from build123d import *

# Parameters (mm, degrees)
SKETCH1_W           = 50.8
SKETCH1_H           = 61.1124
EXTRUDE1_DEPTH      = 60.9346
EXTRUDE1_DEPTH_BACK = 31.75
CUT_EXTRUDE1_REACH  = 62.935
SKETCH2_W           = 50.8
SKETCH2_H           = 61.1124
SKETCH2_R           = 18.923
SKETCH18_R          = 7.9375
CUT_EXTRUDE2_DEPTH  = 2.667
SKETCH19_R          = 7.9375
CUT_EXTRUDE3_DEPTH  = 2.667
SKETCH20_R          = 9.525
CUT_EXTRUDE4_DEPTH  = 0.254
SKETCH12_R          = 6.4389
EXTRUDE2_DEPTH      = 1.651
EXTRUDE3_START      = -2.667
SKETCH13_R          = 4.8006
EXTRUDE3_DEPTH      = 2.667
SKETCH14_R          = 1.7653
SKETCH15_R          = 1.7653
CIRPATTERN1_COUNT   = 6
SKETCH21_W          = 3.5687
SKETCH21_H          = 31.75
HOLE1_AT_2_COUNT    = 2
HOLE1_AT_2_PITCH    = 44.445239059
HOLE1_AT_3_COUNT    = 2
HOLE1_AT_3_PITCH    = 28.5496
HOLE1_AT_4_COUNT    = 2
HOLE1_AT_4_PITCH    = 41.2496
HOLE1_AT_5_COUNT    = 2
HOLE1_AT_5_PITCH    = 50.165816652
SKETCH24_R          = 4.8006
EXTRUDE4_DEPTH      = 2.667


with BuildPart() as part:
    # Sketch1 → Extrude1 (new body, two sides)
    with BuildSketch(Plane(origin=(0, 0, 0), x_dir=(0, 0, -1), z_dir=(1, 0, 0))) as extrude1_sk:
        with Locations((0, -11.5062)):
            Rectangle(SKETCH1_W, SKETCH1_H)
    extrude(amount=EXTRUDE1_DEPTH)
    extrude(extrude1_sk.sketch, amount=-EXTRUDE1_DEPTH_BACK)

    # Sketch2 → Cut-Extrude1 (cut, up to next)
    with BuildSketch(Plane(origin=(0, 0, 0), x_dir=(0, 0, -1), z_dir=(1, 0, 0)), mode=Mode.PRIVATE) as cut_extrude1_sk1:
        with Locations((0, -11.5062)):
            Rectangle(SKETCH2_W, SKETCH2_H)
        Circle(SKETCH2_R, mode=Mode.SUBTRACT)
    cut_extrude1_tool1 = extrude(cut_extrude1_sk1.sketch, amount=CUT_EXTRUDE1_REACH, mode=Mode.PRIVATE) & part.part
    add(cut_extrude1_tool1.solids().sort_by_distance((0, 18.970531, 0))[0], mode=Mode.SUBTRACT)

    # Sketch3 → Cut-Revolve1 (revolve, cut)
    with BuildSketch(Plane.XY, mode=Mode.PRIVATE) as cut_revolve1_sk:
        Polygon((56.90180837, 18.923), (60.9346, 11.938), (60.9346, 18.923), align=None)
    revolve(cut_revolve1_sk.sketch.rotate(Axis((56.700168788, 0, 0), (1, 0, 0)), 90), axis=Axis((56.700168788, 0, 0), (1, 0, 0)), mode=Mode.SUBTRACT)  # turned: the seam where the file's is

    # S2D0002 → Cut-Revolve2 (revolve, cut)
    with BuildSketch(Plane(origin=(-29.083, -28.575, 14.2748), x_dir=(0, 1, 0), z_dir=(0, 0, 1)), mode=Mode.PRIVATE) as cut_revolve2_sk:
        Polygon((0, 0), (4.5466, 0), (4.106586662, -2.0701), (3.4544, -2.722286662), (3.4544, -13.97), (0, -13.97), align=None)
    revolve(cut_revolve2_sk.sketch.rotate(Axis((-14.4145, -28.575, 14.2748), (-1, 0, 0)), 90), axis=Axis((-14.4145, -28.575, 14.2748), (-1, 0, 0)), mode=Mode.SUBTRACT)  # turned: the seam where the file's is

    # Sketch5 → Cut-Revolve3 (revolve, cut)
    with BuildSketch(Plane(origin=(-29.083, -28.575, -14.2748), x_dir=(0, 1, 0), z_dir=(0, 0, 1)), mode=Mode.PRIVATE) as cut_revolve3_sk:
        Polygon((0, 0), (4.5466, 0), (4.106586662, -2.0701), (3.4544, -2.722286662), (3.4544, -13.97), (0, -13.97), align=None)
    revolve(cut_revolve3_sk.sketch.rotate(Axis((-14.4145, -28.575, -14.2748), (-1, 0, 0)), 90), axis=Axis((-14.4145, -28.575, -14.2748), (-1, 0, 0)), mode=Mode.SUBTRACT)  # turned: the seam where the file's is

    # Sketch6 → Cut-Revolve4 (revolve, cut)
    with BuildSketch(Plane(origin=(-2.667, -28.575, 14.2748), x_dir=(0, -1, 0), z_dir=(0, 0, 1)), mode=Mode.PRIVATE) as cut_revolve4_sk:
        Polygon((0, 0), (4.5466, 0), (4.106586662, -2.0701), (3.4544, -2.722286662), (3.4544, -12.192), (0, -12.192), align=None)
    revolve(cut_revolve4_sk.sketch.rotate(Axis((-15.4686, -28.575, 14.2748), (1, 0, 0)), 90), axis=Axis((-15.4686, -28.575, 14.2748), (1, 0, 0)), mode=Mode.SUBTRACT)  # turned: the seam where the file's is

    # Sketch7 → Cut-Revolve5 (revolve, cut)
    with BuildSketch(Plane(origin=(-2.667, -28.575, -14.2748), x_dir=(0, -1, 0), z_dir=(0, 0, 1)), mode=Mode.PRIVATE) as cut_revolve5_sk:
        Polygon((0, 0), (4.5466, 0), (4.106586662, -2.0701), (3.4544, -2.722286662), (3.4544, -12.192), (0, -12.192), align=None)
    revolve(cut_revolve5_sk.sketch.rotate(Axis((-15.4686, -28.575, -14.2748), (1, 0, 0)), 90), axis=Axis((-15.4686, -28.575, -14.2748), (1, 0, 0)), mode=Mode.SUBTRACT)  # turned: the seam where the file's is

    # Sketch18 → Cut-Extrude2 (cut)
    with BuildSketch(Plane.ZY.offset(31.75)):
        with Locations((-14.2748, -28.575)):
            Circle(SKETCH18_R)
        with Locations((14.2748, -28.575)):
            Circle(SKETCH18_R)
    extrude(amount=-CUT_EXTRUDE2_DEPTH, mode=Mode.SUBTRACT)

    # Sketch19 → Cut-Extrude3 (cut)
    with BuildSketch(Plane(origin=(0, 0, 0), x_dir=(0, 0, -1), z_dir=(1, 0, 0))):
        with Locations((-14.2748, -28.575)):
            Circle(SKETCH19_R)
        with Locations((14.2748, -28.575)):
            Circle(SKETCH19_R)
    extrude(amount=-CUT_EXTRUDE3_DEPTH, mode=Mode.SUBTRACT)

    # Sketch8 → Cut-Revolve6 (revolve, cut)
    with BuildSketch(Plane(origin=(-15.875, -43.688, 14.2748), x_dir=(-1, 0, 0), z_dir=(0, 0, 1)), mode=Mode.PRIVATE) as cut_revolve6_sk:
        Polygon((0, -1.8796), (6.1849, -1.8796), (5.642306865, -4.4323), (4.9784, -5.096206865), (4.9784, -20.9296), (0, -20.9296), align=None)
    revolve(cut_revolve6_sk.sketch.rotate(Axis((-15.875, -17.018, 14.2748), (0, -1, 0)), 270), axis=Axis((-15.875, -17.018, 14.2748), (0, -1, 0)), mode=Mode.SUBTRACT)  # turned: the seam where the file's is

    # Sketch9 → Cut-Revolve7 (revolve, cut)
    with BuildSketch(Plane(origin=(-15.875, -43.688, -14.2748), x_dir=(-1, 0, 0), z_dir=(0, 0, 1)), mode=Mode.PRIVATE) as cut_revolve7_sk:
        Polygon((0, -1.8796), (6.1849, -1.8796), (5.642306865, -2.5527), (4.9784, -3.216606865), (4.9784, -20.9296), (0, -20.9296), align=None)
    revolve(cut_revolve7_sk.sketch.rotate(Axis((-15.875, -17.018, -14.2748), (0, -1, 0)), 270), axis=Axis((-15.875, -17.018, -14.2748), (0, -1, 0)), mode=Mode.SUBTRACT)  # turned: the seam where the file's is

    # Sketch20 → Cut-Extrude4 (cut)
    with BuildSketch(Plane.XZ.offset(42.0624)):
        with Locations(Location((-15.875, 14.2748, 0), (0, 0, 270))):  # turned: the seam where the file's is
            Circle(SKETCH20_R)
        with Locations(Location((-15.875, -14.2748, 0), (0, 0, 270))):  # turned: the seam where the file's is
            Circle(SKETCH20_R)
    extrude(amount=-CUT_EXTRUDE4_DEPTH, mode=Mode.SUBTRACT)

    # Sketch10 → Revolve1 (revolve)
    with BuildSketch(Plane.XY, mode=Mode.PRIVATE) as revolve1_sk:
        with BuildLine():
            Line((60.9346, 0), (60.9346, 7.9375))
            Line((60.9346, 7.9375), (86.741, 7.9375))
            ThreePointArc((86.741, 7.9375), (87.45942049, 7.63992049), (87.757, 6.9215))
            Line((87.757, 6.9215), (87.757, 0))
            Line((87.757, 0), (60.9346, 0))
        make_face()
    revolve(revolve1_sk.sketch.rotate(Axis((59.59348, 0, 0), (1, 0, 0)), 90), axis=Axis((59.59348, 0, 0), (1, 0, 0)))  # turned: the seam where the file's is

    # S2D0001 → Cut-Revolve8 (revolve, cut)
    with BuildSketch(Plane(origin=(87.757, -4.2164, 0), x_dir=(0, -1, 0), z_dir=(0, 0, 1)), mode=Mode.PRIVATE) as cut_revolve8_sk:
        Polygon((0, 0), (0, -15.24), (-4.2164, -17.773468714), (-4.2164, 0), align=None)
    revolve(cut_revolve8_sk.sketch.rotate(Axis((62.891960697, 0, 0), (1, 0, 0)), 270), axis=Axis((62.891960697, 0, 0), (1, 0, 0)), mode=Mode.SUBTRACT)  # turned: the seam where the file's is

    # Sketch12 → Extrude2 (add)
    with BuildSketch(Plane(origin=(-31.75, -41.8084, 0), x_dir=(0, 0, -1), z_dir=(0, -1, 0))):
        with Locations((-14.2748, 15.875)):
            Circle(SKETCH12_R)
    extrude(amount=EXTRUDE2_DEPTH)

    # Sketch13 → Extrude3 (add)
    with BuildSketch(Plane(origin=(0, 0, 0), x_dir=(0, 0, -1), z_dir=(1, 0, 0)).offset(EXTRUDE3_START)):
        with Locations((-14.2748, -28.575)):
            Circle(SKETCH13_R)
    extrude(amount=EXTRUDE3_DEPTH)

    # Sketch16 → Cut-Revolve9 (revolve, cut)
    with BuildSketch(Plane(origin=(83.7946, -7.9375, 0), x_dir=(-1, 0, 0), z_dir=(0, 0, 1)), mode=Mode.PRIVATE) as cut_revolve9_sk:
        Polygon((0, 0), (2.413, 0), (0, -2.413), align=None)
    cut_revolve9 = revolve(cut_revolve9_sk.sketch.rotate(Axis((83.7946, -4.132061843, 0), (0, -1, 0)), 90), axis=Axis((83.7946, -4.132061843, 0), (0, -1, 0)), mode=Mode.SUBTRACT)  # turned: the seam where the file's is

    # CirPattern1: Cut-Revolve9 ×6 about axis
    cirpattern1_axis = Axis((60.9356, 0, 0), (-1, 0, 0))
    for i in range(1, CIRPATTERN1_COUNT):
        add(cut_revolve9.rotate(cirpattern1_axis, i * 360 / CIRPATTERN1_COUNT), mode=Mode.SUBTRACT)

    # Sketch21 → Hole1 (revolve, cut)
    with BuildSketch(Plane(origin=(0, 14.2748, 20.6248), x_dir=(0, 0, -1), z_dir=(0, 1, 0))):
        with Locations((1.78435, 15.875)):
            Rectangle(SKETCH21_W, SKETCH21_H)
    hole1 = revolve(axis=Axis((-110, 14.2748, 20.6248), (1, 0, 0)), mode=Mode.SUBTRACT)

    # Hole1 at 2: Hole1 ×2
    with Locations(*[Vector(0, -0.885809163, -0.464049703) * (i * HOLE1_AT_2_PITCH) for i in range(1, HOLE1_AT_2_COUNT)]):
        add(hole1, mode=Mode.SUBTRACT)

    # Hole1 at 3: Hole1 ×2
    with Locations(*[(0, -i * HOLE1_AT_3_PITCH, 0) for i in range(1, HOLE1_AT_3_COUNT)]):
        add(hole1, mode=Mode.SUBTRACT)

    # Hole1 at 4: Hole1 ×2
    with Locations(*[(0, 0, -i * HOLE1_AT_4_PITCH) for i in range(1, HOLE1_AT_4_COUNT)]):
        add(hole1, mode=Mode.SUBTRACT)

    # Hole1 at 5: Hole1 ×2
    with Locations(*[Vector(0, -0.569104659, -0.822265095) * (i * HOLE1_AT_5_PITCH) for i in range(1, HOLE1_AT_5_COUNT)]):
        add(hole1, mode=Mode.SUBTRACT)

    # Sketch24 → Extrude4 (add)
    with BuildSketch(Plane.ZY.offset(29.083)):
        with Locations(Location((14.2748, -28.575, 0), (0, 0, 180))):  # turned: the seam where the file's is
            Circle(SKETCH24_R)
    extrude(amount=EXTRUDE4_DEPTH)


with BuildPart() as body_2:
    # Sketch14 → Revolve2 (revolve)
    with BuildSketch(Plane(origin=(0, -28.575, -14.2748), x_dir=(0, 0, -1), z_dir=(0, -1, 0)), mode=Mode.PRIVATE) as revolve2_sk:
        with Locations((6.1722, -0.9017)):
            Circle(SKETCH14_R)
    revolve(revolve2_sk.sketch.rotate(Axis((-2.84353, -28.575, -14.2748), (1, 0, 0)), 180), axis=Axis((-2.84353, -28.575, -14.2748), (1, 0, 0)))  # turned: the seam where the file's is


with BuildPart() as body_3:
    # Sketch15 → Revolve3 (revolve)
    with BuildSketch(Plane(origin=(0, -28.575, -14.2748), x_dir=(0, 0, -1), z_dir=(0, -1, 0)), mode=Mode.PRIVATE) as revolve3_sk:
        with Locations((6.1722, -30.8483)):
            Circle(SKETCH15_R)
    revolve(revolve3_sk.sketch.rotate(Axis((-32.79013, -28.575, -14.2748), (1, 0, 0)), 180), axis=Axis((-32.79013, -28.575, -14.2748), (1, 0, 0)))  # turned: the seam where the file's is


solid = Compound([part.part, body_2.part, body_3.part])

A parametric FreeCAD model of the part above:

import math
import FreeCAD as App
import Part
import Sketcher

V = App.Vector
Q = App.Units.Quantity


def add_polygon(sketch, points):
    """Adds a closed chain of lines whose ends are joined by coincident constraints."""
    first, n = sketch.GeometryCount, len(points)
    for a, b in zip(points, points[1:] + points[:1]):
        sketch.addGeometry(Part.LineSegment(App.Vector(*a, 0), App.Vector(*b, 0)), False)
    for i in range(n):
        sketch.addConstraint(Sketcher.Constraint("Coincident", first + i, 2, first + (i + 1) % n, 1))

doc = App.newDocument("Part")
body = doc.addObject("PartDesign::Body", "Body")

# Sketch on YZ plane
sketch1 = doc.addObject("Sketcher::SketchObject", "Sketch")
body.addObject(sketch1)
sketch1.AttachmentSupport = (doc.YZ_Plane, [""])
sketch1.MapMode = "FlatFace"
add_polygon(sketch1, [(19, 25), (-42, 25), (-42, -25), (19, -25)])  # lines 0-3
sketch1.addConstraint([
    Sketcher.Constraint("Horizontal", 0),
    Sketcher.Constraint("Vertical", 1),
    Sketcher.Constraint("Horizontal", 2),
    Sketcher.Constraint("Vertical", 3),
    Sketcher.Constraint("DistanceY", 1, 2, 1, 1, Q("2 in")),
    Sketcher.Constraint("DistanceY", -1, 1, 0, 2, Q("1 in")),
    Sketcher.Constraint("DistanceX", 0, 2, 0, 1, Q("2.406 in")),
    Sketcher.Constraint("DistanceX", -1, 1, 2, 2, Q("0.75 in")),
])
pad1 = doc.addObject("PartDesign::Pad", "Pad")
body.addObject(pad1)
pad1.Profile = sketch1
pad1.Type = "TwoLengths"
pad1.Length = Q("2.399 in")
pad1.Length2 = Q("1.25 in")

# Sketch on YZ plane
sketch2 = doc.addObject("Sketcher::SketchObject", "Sketch001")
body.addObject(sketch2)
sketch2.AttachmentSupport = (doc.YZ_Plane, [""])
sketch2.MapMode = "FlatFace"
add_polygon(sketch2, [(19, 25), (-42, 25), (-42, -25), (19, -25)])  # lines 0-3
sketch2.addGeometry(Part.Circle(V(0, 0, 0), V(0, 0, 1), 19), False)  # 4
sketch2.addConstraint([
    Sketcher.Constraint("Horizontal", 0),
    Sketcher.Constraint("Vertical", 1),
    Sketcher.Constraint("Horizontal", 2),
    Sketcher.Constraint("Vertical", 3),
    Sketcher.Constraint("Coincident", 4, 3, -1, 1),
    Sketcher.Constraint("Diameter", 4, Q("1.49 in")),
    Sketcher.Constraint("DistanceY", 1, 2, 1, 1, Q("2 in")),
    Sketcher.Constraint("DistanceY", -1, 1, 0, 2, Q("1 in")),
    Sketcher.Constraint("DistanceX", 0, 2, 0, 1, Q("2.406 in")),
    Sketcher.Constraint("DistanceX", -1, 1, 2, 2, Q("0.75 in")),
])
pocket1 = doc.addObject("PartDesign::Pocket", "Pocket")
body.addObject(pocket1)
pocket1.Profile = sketch2
pocket1.Type = "UpToFirst"
pocket1.Reversed = True

# Sketch on XY plane
sketch3 = doc.addObject("Sketcher::SketchObject", "Sketch002")
body.addObject(sketch3)
sketch3.AttachmentSupport = (doc.XY_Plane, [""])
sketch3.MapMode = "FlatFace"
add_polygon(sketch3, [(56.9, 18.9), (60.9, 11.9), (60.9, 18.9)])  # lines 0-2
sketch3.addConstraint([
    Sketcher.Constraint("Vertical", 1),
    Sketcher.Constraint("Horizontal", 2),
    Sketcher.Constraint("Angle", 0, Q("-60 deg")),
    Sketcher.Constraint("DistanceY", 1, 1, 1, 2, Q("0.275 in")),
    Sketcher.Constraint("DistanceY", -1, 1, 0, 2, Q("0.47 in")),
    Sketcher.Constraint("DistanceX", -1, 1, 0, 2, Q("2.399 in")),
])
groove = doc.addObject("PartDesign::Groove", "Groove")
body.addObject(groove)
groove.Profile = sketch3
groove.ReferenceAxis = (sketch3, ["H_Axis"])
groove.Angle = 360

# Sketch on XY plane
sketch4 = doc.addObject("Sketcher::SketchObject", "Sketch003")
body.addObject(sketch4)
sketch4.AttachmentSupport = (doc.XY_Plane, [""])
sketch4.MapMode = "FlatFace"
sketch4.AttachmentOffset = App.Placement(V(0, 0, 0.562 * 25.4), App.Rotation())
add_polygon(sketch4, [(-29.1, -24), (-29.1, -28.6), (-15.1, -28.6), (-15.1, -25.1), (-26.4, -25.1), (-27, -24.5)])  # lines 0-5
sketch4.addGeometry(Part.LineSegment(V(-15.1, -28.6, 0), V(-29.1, -28.6, 0)), True)  # axis
sketch4.addConstraint([
    Sketcher.Constraint("Vertical", 0),
    Sketcher.Constraint("Horizontal", 1),
    Sketcher.Constraint("Vertical", 2),
    Sketcher.Constraint("Horizontal", 3),
    Sketcher.Constraint("Horizontal", 6),
    Sketcher.Constraint("Coincident", 6, 1, 1, 2),
    Sketcher.Constraint("Vertical", 5, 2, 6, 2),
    Sketcher.Constraint("Angle", 4, Q("135 deg")),
    Sketcher.Constraint("Angle", 5, Q("168 deg")),
    Sketcher.Constraint("DistanceX", 1, 1, 1, 2, Q("0.55 in")),
    Sketcher.Constraint("DistanceY", 0, 2, 0, 1, Q("0.179 in")),
    Sketcher.Constraint("DistanceY", 2, 1, 2, 2, Q("0.136 in")),
    Sketcher.Constraint("DistanceX", 0, 2, -1, 1, Q("1.145 in")),
    Sketcher.Constraint("DistanceY", 0, 2, -1, 1, Q("1.125 in")),
    Sketcher.Constraint("DistanceX", 4, 2, -1, 1, Q("1.0635 in")),
])
groove2 = doc.addObject("PartDesign::Groove", "Groove001")
body.addObject(groove2)
groove2.Profile = sketch4
groove2.ReferenceAxis = (sketch4, ["Axis0"])
groove2.Angle = 360

# Sketch on XY plane
sketch5 = doc.addObject("Sketcher::SketchObject", "Sketch004")
body.addObject(sketch5)
sketch5.AttachmentSupport = (doc.XY_Plane, [""])
sketch5.MapMode = "FlatFace"
sketch5.AttachmentOffset = App.Placement(V(0, 0, -0.562 * 25.4), App.Rotation())
add_polygon(sketch5, [(-29.1, -24), (-29.1, -28.6), (-15.1, -28.6), (-15.1, -25.1), (-26.4, -25.1), (-27, -24.5)])  # lines 0-5
sketch5.addGeometry(Part.LineSegment(V(-15.1, -28.6, 0), V(-29.1, -28.6, 0)), True)  # axis
sketch5.addConstraint([
    Sketcher.Constraint("Vertical", 0),
    Sketcher.Constraint("Horizontal", 1),
    Sketcher.Constraint("Vertical", 2),
    Sketcher.Constraint("Horizontal", 3),
    Sketcher.Constraint("Horizontal", 6),
    Sketcher.Constraint("Coincident", 6, 1, 1, 2),
    Sketcher.Constraint("Vertical", 5, 2, 6, 2),
    Sketcher.Constraint("Angle", 4, Q("135 deg")),
    Sketcher.Constraint("Angle", 5, Q("168 deg")),
    Sketcher.Constraint("DistanceX", 1, 1, 1, 2, Q("0.55 in")),
    Sketcher.Constraint("DistanceY", 0, 2, 0, 1, Q("0.179 in")),
    Sketcher.Constraint("DistanceY", 2, 1, 2, 2, Q("0.136 in")),
    Sketcher.Constraint("DistanceX", 0, 2, -1, 1, Q("1.145 in")),
    Sketcher.Constraint("DistanceY", 0, 2, -1, 1, Q("1.125 in")),
    Sketcher.Constraint("DistanceX", 4, 2, -1, 1, Q("1.0635 in")),
])
groove3 = doc.addObject("PartDesign::Groove", "Groove002")
body.addObject(groove3)
groove3.Profile = sketch5
groove3.ReferenceAxis = (sketch5, ["Axis0"])
groove3.Angle = 360

# Sketch on XY plane
sketch6 = doc.addObject("Sketcher::SketchObject", "Sketch005")
body.addObject(sketch6)
sketch6.AttachmentSupport = (doc.XY_Plane, [""])
sketch6.MapMode = "FlatFace"
sketch6.AttachmentOffset = App.Placement(V(0, 0, 0.562 * 25.4), App.Rotation())
add_polygon(sketch6, [(-2.7, -33.1), (-2.7, -28.6), (-14.9, -28.6), (-14.9, -32), (-5.4, -32), (-4.7, -32.7)])  # lines 0-5
sketch6.addGeometry(Part.LineSegment(V(-14.9, -28.6, 0), V(-2.7, -28.6, 0)), True)  # axis
sketch6.addConstraint([
    Sketcher.Constraint("Vertical", 0),
    Sketcher.Constraint("Horizontal", 1),
    Sketcher.Constraint("Vertical", 2),
    Sketcher.Constraint("Horizontal", 3),
    Sketcher.Constraint("Horizontal", 6),
    Sketcher.Constraint("Coincident", 6, 1, 1, 2),
    Sketcher.Constraint("Vertical", 5, 2, 6, 2),
    Sketcher.Constraint("Angle", 4, Q("-45 deg")),
    Sketcher.Constraint("Angle", 5, Q("-12 deg")),
    Sketcher.Constraint("DistanceX", 1, 2, 1, 1, Q("0.48 in")),
    Sketcher.Constraint("DistanceY", 0, 1, 0, 2, Q("0.179 in")),
    Sketcher.Constraint("DistanceY", 2, 2, 2, 1, Q("0.136 in")),
    Sketcher.Constraint("DistanceX", 0, 2, -1, 1, Q("0.105 in")),
    Sketcher.Constraint("DistanceY", 0, 2, -1, 1, Q("1.125 in")),
    Sketcher.Constraint("DistanceX", 4, 2, -1, 1, Q("0.1865 in")),
])
groove4 = doc.addObject("PartDesign::Groove", "Groove003")
body.addObject(groove4)
groove4.Profile = sketch6
groove4.ReferenceAxis = (sketch6, ["Axis0"])
groove4.Angle = 360

# Sketch on XY plane
sketch7 = doc.addObject("Sketcher::SketchObject", "Sketch006")
body.addObject(sketch7)
sketch7.AttachmentSupport = (doc.XY_Plane, [""])
sketch7.MapMode = "FlatFace"
sketch7.AttachmentOffset = App.Placement(V(0, 0, -0.562 * 25.4), App.Rotation())
add_polygon(sketch7, [(-2.7, -33.1), (-2.7, -28.6), (-14.9, -28.6), (-14.9, -32), (-5.4, -32), (-4.7, -32.7)])  # lines 0-5
sketch7.addGeometry(Part.LineSegment(V(-14.9, -28.6, 0), V(-2.7, -28.6, 0)), True)  # axis
sketch7.addConstraint([
    Sketcher.Constraint("Vertical", 0),
    Sketcher.Constraint("Horizontal", 1),
    Sketcher.Constraint("Vertical", 2),
    Sketcher.Constraint("Horizontal", 3),
    Sketcher.Constraint("Horizontal", 6),
    Sketcher.Constraint("Coincident", 6, 1, 1, 2),
    Sketcher.Constraint("Vertical", 5, 2, 6, 2),
    Sketcher.Constraint("Angle", 4, Q("-45 deg")),
    Sketcher.Constraint("Angle", 5, Q("-12 deg")),
    Sketcher.Constraint("DistanceX", 1, 2, 1, 1, Q("0.48 in")),
    Sketcher.Constraint("DistanceY", 0, 1, 0, 2, Q("0.179 in")),
    Sketcher.Constraint("DistanceY", 2, 2, 2, 1, Q("0.136 in")),
    Sketcher.Constraint("DistanceX", 0, 2, -1, 1, Q("0.105 in")),
    Sketcher.Constraint("DistanceY", 0, 2, -1, 1, Q("1.125 in")),
    Sketcher.Constraint("DistanceX", 4, 2, -1, 1, Q("0.1865 in")),
])
groove5 = doc.addObject("PartDesign::Groove", "Groove004")
body.addObject(groove5)
groove5.Profile = sketch7
groove5.ReferenceAxis = (sketch7, ["Axis0"])
groove5.Angle = 360

# Sketch on YZ plane
sketch8 = doc.addObject("Sketcher::SketchObject", "Sketch007")
body.addObject(sketch8)
sketch8.AttachmentSupport = (doc.YZ_Plane, [""])
sketch8.MapMode = "FlatFace"
sketch8.AttachmentOffset = App.Placement(V(0, 0, -1.25 * 25.4), App.Rotation())
sketch8.addGeometry([
    Part.Circle(V(-29, -14, 0), V(0, 0, 1), 8),
    Part.Circle(V(-29, 14, 0), V(0, 0, 1), 8),
], False)
sketch8.addConstraint([
    Sketcher.Constraint("Equal", 0, 1),
    Sketcher.Constraint("Symmetric", 0, 3, 1, 3, -1),
    Sketcher.Constraint("Diameter", 0, Q("0.625 in")),
    Sketcher.Constraint("DistanceX", 0, 3, -1, 1, Q("1.125 in")),
    Sketcher.Constraint("DistanceY", 0, 3, -1, 1, Q("0.562 in")),
])
pocket2 = doc.addObject("PartDesign::Pocket", "Pocket001")
body.addObject(pocket2)
pocket2.Profile = sketch8
pocket2.Length = Q("0.105 in")
pocket2.Reversed = True

# Sketch on YZ plane
sketch9 = doc.addObject("Sketcher::SketchObject", "Sketch008")
body.addObject(sketch9)
sketch9.AttachmentSupport = (doc.YZ_Plane, [""])
sketch9.MapMode = "FlatFace"
sketch9.addGeometry([
    Part.Circle(V(-29, 14, 0), V(0, 0, 1), 8),
    Part.Circle(V(-29, -14, 0), V(0, 0, 1), 8),
], False)
sketch9.addConstraint([
    Sketcher.Constraint("Equal", 0, 1),
    Sketcher.Constraint("Symmetric", 0, 3, 1, 3, -1),
    Sketcher.Constraint("Diameter", 0, Q("0.625 in")),
    Sketcher.Constraint("DistanceX", 0, 3, -1, 1, Q("1.125 in")),
    Sketcher.Constraint("DistanceY", -1, 1, 0, 3, Q("0.562 in")),
])
pocket3 = doc.addObject("PartDesign::Pocket", "Pocket002")
body.addObject(pocket3)
pocket3.Profile = sketch9
pocket3.Length = Q("0.105 in")

# Sketch on XY plane
sketch10 = doc.addObject("Sketcher::SketchObject", "Sketch009")
body.addObject(sketch10)
sketch10.AttachmentSupport = (doc.XY_Plane, [""])
sketch10.MapMode = "FlatFace"
sketch10.AttachmentOffset = App.Placement(V(0, 0, 0.562 * 25.4), App.Rotation())
add_polygon(sketch10, [(-22.1, -41.8), (-15.9, -41.8), (-15.9, -22.8), (-20.9, -22.8), (-20.9, -38.6), (-21.5, -39.3)])  # lines 0-5
sketch10.addGeometry(Part.LineSegment(V(-15.9, -22.8, 0), V(-15.9, -41.8, 0)), True)  # axis
sketch10.addConstraint([
    Sketcher.Constraint("Horizontal", 0),
    Sketcher.Constraint("Vertical", 1),
    Sketcher.Constraint("Horizontal", 2),
    Sketcher.Constraint("Vertical", 3),
    Sketcher.Constraint("Vertical", 6),
    Sketcher.Constraint("Coincident", 6, 1, 1, 2),
    Sketcher.Constraint("Horizontal", 5, 2, 6, 2),
    Sketcher.Constraint("Angle", 4, Q("-135 deg")),
    Sketcher.Constraint("Angle", 5, Q("-102 deg")),
    Sketcher.Constraint("DistanceY", 1, 1, 1, 2, Q("0.75 in")),
    Sketcher.Constraint("DistanceX", 2, 2, 2, 1, Q("0.196 in")),
    Sketcher.Constraint("DistanceX", 0, 1, 0, 2, Q("0.2435 in")),
    Sketcher.Constraint("DistanceX", 0, 2, -1, 1, Q("0.625 in")),
    Sketcher.Constraint("DistanceY", 0, 2, -1, 1, Q("1.646 in")),
    Sketcher.Constraint("DistanceY", 4, 2, -1, 1, Q("1.5455 in")),
])
groove6 = doc.addObject("PartDesign::Groove", "Groove005")
body.addObject(groove6)
groove6.Profile = sketch10
groove6.ReferenceAxis = (sketch10, ["Axis0"])
groove6.Angle = 360

# Sketch on XY plane
sketch11 = doc.addObject("Sketcher::SketchObject", "Sketch010")
body.addObject(sketch11)
sketch11.AttachmentSupport = (doc.XY_Plane, [""])
sketch11.MapMode = "FlatFace"
sketch11.AttachmentOffset = App.Placement(V(0, 0, -0.562 * 25.4), App.Rotation())
add_polygon(sketch11, [(-22.1, -41.8), (-15.9, -41.8), (-15.9, -22.8), (-20.9, -22.8), (-20.9, -40.5), (-21.5, -41.1)])  # lines 0-5
sketch11.addGeometry(Part.LineSegment(V(-15.9, -22.8, 0), V(-15.9, -41.8, 0)), True)  # axis
sketch11.addConstraint([
    Sketcher.Constraint("Horizontal", 0),
    Sketcher.Constraint("Vertical", 1),
    Sketcher.Constraint("Horizontal", 2),
    Sketcher.Constraint("Vertical", 3),
    Sketcher.Constraint("Vertical", 6),
    Sketcher.Constraint("Coincident", 6, 1, 1, 2),
    Sketcher.Constraint("Horizontal", 5, 2, 6, 2),
    Sketcher.Constraint("Angle", 4, Q("-135 deg")),
    Sketcher.Constraint("DistanceY", 1, 1, 1, 2, Q("0.75 in")),
    Sketcher.Constraint("DistanceX", 2, 2, 2, 1, Q("0.196 in")),
    Sketcher.Constraint("DistanceX", 0, 1, 0, 2, Q("0.2435 in")),
    Sketcher.Constraint("DistanceX", 0, 2, -1, 1, Q("0.625 in")),
    Sketcher.Constraint("DistanceY", 0, 2, -1, 1, Q("1.646 in")),
    Sketcher.Constraint("DistanceY", 4, 2, -1, 1, Q("1.6195 in")),
    Sketcher.Constraint("DistanceY", 3, 2, 3, 1, 17.712993),
])
groove7 = doc.addObject("PartDesign::Groove", "Groove006")
body.addObject(groove7)
groove7.Profile = sketch11
groove7.ReferenceAxis = (sketch11, ["Axis0"])
groove7.Angle = 360

# Sketch on XZ plane
sketch12 = doc.addObject("Sketcher::SketchObject", "Sketch011")
body.addObject(sketch12)
sketch12.AttachmentSupport = (doc.XZ_Plane, [""])
sketch12.MapMode = "FlatFace"
sketch12.AttachmentOffset = App.Placement(V(0, 0, 1.656 * 25.4), App.Rotation())
sketch12.addGeometry([
    Part.Circle(V(-16, 14, 0), V(0, 0, 1), 10),
    Part.Circle(V(-16, -14, 0), V(0, 0, 1), 10),
], False)
sketch12.addConstraint([
    Sketcher.Constraint("Equal", 0, 1),
    Sketcher.Constraint("Symmetric", 0, 3, 1, 3, -1),
    Sketcher.Constraint("Diameter", 0, Q("0.75 in")),
    Sketcher.Constraint("DistanceX", 0, 3, -1, 1, Q("0.625 in")),
    Sketcher.Constraint("DistanceY", -1, 1, 0, 3, Q("0.562 in")),
])
pocket4 = doc.addObject("PartDesign::Pocket", "Pocket003")
body.addObject(pocket4)
pocket4.Profile = sketch12
pocket4.Length = Q("0.01 in")

# Sketch on XY plane
sketch13 = doc.addObject("Sketcher::SketchObject", "Sketch012")
body.addObject(sketch13)
sketch13.AttachmentSupport = (doc.XY_Plane, [""])
sketch13.MapMode = "FlatFace"
sketch13.addGeometry([
    Part.LineSegment(V(60.9, 7.9, 0), V(60.9, 0, 0)),  # 0
    Part.LineSegment(V(60.9, 0, 0), V(87.8, 0, 0)),  # 1
    Part.LineSegment(V(87.8, 0, 0), V(87.8, 6.9, 0)),  # 2
    Part.ArcOfCircle(Part.Circle(V(86.7, 6.9, 0), V(0, 0, 1), 1), math.radians(0), math.radians(90)),  # 3
    Part.LineSegment(V(86.7, 7.9, 0), V(60.9, 7.9, 0)),  # 4
], False)
sketch13.addConstraint([
    Sketcher.Constraint("Coincident", 0, 2, 1, 1),
    Sketcher.Constraint("Coincident", 1, 2, 2, 1),
    Sketcher.Constraint("Tangent", 2, 2, 3, 1),
    Sketcher.Constraint("Tangent", 3, 2, 4, 1),
    Sketcher.Constraint("Coincident", 4, 2, 0, 1),
    Sketcher.Constraint("Vertical", 0),
    Sketcher.Constraint("Horizontal", 1),
    Sketcher.Constraint("Vertical", 2),
    Sketcher.Constraint("Horizontal", 4),
    Sketcher.Constraint("PointOnObject", 0, 2, -1),
    Sketcher.Constraint("Radius", 3, Q("0.04 in")),
    Sketcher.Constraint("DistanceX", 1, 1, 1, 2, Q("1.056 in")),
    Sketcher.Constraint("DistanceY", 0, 2, 0, 1, Q("0.3125 in")),
    Sketcher.Constraint("DistanceX", -1, 1, 3, 3, Q("3.415 in")),
])
revolution = doc.addObject("PartDesign::Revolution", "Revolution")
body.addObject(revolution)
revolution.Profile = sketch13
revolution.ReferenceAxis = (sketch13, ["H_Axis"])
revolution.Angle = 360

# Sketch on XY plane
sketch14 = doc.addObject("Sketcher::SketchObject", "Sketch013")
body.addObject(sketch14)
sketch14.AttachmentSupport = (doc.XY_Plane, [""])
sketch14.MapMode = "FlatFace"
add_polygon(sketch14, [(72.5, -4.2), (87.8, -4.2), (87.8, 0), (70, 0)])  # lines 0-3
sketch14.addConstraint([
    Sketcher.Constraint("Horizontal", 0),
    Sketcher.Constraint("Vertical", 1),
    Sketcher.Constraint("Horizontal", 2),
    Sketcher.Constraint("PointOnObject", 1, 2, -1),
    Sketcher.Constraint("DistanceX", 0, 1, 0, 2, Q("0.6 in")),
    Sketcher.Constraint("Angle", 3, Q("-59 deg")),
    Sketcher.Constraint("DistanceY", 1, 1, 1, 2, Q("0.166 in")),
    Sketcher.Constraint("DistanceX", -1, 1, 0, 2, Q("3.455 in")),
])
groove8 = doc.addObject("PartDesign::Groove", "Groove007")
body.addObject(groove8)
groove8.Profile = sketch14
groove8.ReferenceAxis = (sketch14, ["H_Axis"])
groove8.Angle = 360

# Sketch on XZ plane
sketch15 = doc.addObject("Sketcher::SketchObject", "Sketch014")
body.addObject(sketch15)
sketch15.AttachmentSupport = (doc.XZ_Plane, [""])
sketch15.MapMode = "FlatFace"
sketch15.AttachmentOffset = App.Placement(V(0, 0, 1.646 * 25.4), App.Rotation())
sketch15.addGeometry(Part.Circle(V(-16, 14, 0), V(0, 0, 1), 6), False)
sketch15.addConstraint([
    Sketcher.Constraint("Diameter", 0, Q("0.507 in")),
    Sketcher.Constraint("DistanceX", 0, 3, -1, 1, Q("0.625 in")),
    Sketcher.Constraint("DistanceY", -1, 1, 0, 3, Q("0.562 in")),
])
pad2 = doc.addObject("PartDesign::Pad", "Pad001")
body.addObject(pad2)
pad2.Profile = sketch15
pad2.Length = Q("0.065 in")

# Sketch on YZ plane
sketch16 = doc.addObject("Sketcher::SketchObject", "Sketch015")
body.addObject(sketch16)
sketch16.AttachmentSupport = (doc.YZ_Plane, [""])
sketch16.MapMode = "FlatFace"
sketch16.AttachmentOffset = App.Placement(V(0, 0, -0.105 * 25.4), App.Rotation())
sketch16.addGeometry(Part.Circle(V(-28.6, 14.3, 0), V(0, 0, 1), 4.8), False)
sketch16.addConstraint([
    Sketcher.Constraint("Diameter", 0, Q("0.378 in")),
    Sketcher.Constraint("DistanceX", 0, 3, -1, 1, Q("1.125 in")),
    Sketcher.Constraint("DistanceY", -1, 1, 0, 3, Q("0.562 in")),
])
pad3 = doc.addObject("PartDesign::Pad", "Pad002")
body.addObject(pad3)
pad3.Profile = sketch16
pad3.Length = Q("0.105 in")

# Sketch on XY plane
sketch17 = doc.addObject("Sketcher::SketchObject", "Sketch016")
body.addObject(sketch17)
sketch17.AttachmentSupport = (doc.XY_Plane, [""])
sketch17.MapMode = "FlatFace"
add_polygon(sketch17, [(81.4, -7.9), (83.8, -7.9), (83.8, -5.5)])  # lines 0-2
sketch17.addGeometry(Part.LineSegment(V(83.8, -5.5, 0), V(83.8, -7.9, 0)), True)  # axis
sketch17.addConstraint([
    Sketcher.Constraint("Horizontal", 0),
    Sketcher.Constraint("Vertical", 1),
    Sketcher.Constraint("Vertical", 3),
    Sketcher.Constraint("Coincident", 3, 1, 1, 2),
    Sketcher.Constraint("Horizontal", 2, 2, 3, 2),
    Sketcher.Constraint("Equal", 0, 1),
    Sketcher.Constraint("DistanceX", 0, 1, 0, 2, Q("0.095 in")),
    Sketcher.Constraint("DistanceX", -1, 1, 0, 2, Q("3.299 in")),
    Sketcher.Constraint("DistanceY", 0, 2, -1, 1, Q("0.3125 in")),
])
groove9 = doc.addObject("PartDesign::Groove", "Groove008")
body.addObject(groove9)
groove9.Profile = sketch17
groove9.ReferenceAxis = (sketch17, ["Axis0"])
groove9.Angle = 360
doc.recompute()

polarpattern = doc.addObject("PartDesign::PolarPattern", "PolarPattern")
body.addObject(polarpattern)
polarpattern.Originals = [groove9]
polarpattern.Axis = (doc.X_Axis, [""])
polarpattern.Angle = 360
polarpattern.Occurrences = 6
body.Tip = polarpattern

# Sketch on XZ plane
sketch18 = doc.addObject("Sketcher::SketchObject", "Sketch017")
body.addObject(sketch18)
sketch18.AttachmentSupport = (doc.XZ_Plane, [""])
sketch18.MapMode = "FlatFace"
sketch18.AttachmentOffset = App.Placement(V(0, 0, -0.562 * 25.4), App.Rotation())
add_polygon(sketch18, [(-31.8, 20.6), (0, 20.6), (0, 17.1), (-31.8, 17.1)])  # lines 0-3
sketch18.addGeometry(Part.LineSegment(V(-31.8, 20.6, 0), V(0, 20.6, 0)), True)  # axis
sketch18.addConstraint([
    Sketcher.Constraint("Horizontal", 0),
    Sketcher.Constraint("Vertical", 1),
    Sketcher.Constraint("Horizontal", 2),
    Sketcher.Constraint("Vertical", 3),
    Sketcher.Constraint("Horizontal", 4),
    Sketcher.Constraint("Coincident", 4, 1, 3, 2),
    Sketcher.Constraint("PointOnObject", 0, 2, -2),
    Sketcher.Constraint("PointOnObject", 4, 2, -2),
    Sketcher.Constraint("DistanceX", 0, 1, 0, 2, Q("1.25 in")),
    Sketcher.Constraint("DistanceY", 1, 2, 1, 1, Q("0.1405 in")),
    Sketcher.Constraint("DistanceY", -1, 1, 0, 2, Q("0.812 in")),
])
groove10 = doc.addObject("PartDesign::Groove", "Groove009")
body.addObject(groove10)
groove10.Profile = sketch18
groove10.ReferenceAxis = (sketch18, ["Axis0"])
groove10.Angle = 360
doc.recompute()

datumline = doc.addObject("PartDesign::Line", "DatumLine")
body.addObject(datumline)
datumline.Placement = App.Placement(V(0, 0, 0), App.Rotation(V(0, 0, 1), V(0, -0.885809163, -0.464049703)))
linearpattern = doc.addObject("PartDesign::LinearPattern", "LinearPattern")
body.addObject(linearpattern)
linearpattern.Originals = [groove10]
linearpattern.Direction = (datumline, [""])
linearpattern.Mode = "offset"
linearpattern.Offset = 44.445239
linearpattern.Occurrences = 2
body.Tip = linearpattern
doc.recompute()

linearpattern2 = doc.addObject("PartDesign::LinearPattern", "LinearPattern001")
body.addObject(linearpattern2)
linearpattern2.Originals = [groove10]
linearpattern2.Direction = (doc.Y_Axis, [""])
linearpattern2.Mode = "offset"
linearpattern2.Offset = Q("1.124 in")
linearpattern2.Occurrences = 2
linearpattern2.Reversed = True
body.Tip = linearpattern2
doc.recompute()

linearpattern3 = doc.addObject("PartDesign::LinearPattern", "LinearPattern002")
body.addObject(linearpattern3)
linearpattern3.Originals = [groove10]
linearpattern3.Direction = (doc.Z_Axis, [""])
linearpattern3.Mode = "offset"
linearpattern3.Offset = Q("1.624 in")
linearpattern3.Occurrences = 2
linearpattern3.Reversed = True
body.Tip = linearpattern3
doc.recompute()

datumline2 = doc.addObject("PartDesign::Line", "DatumLine001")
body.addObject(datumline2)
datumline2.Placement = App.Placement(V(0, 0, 0), App.Rotation(V(0, 0, 1), V(0, -0.569104659, -0.822265095)))
linearpattern4 = doc.addObject("PartDesign::LinearPattern", "LinearPattern003")
body.addObject(linearpattern4)
linearpattern4.Originals = [groove10]
linearpattern4.Direction = (datumline2, [""])
linearpattern4.Mode = "offset"
linearpattern4.Offset = 50.165817
linearpattern4.Occurrences = 2
body.Tip = linearpattern4

# Sketch on YZ plane
sketch19 = doc.addObject("Sketcher::SketchObject", "Sketch018")
body.addObject(sketch19)
sketch19.AttachmentSupport = (doc.YZ_Plane, [""])
sketch19.MapMode = "FlatFace"
sketch19.AttachmentOffset = App.Placement(V(0, 0, -1.145 * 25.4), App.Rotation())
sketch19.addGeometry(Part.Circle(V(-28.6, 14.3, 0), V(0, 0, 1), 4.8), False)
sketch19.addConstraint([
    Sketcher.Constraint("Diameter", 0, Q("0.378 in")),
    Sketcher.Constraint("DistanceX", 0, 3, -1, 1, Q("1.125 in")),
    Sketcher.Constraint("DistanceY", -1, 1, 0, 3, Q("0.562 in")),
])
pad4 = doc.addObject("PartDesign::Pad", "Pad003")
body.addObject(pad4)
pad4.Profile = sketch19
pad4.Length = Q("0.105 in")
pad4.Reversed = True
body2 = doc.addObject("PartDesign::Body", "Body001")

# Sketch on XZ plane
sketch20 = doc.addObject("Sketcher::SketchObject", "Sketch019")
body2.addObject(sketch20)
sketch20.AttachmentSupport = (doc.getObject("XZ_Plane001"), [""])
sketch20.MapMode = "FlatFace"
sketch20.AttachmentOffset = App.Placement(V(0, 0, 1.125 * 25.4), App.Rotation())
sketch20.addGeometry(Part.Circle(V(-0.9, -20.4, 0), V(0, 0, 1), 1.8), False)
sketch20.addGeometry(Part.LineSegment(V(-0.9, -14.3, 0), V(9.1, -14.3, 0)), True)  # axis
sketch20.addConstraint([
    Sketcher.Constraint("Horizontal", 1),
    Sketcher.Constraint("Vertical", 0, 3, 1, 1),
    Sketcher.Constraint("Diameter", 0, Q("0.139 in")),
    Sketcher.Constraint("DistanceY", 0, 3, -1, 1, Q("0.805 in")),
    Sketcher.Constraint("DistanceY", 1, 1, -1, 1, Q("0.562 in")),
    Sketcher.Constraint("DistanceX", 1, 1, 1, 2, 10.0),
    Sketcher.Constraint("DistanceX", 0, 3, -1, 1, Q("0.0355 in")),
])
revolution2 = doc.addObject("PartDesign::Revolution", "Revolution001")
body2.addObject(revolution2)
revolution2.Profile = sketch20
revolution2.ReferenceAxis = (sketch20, ["Axis0"])
revolution2.Angle = 360
body3 = doc.addObject("PartDesign::Body", "Body002")

# Sketch on XZ plane
sketch21 = doc.addObject("Sketcher::SketchObject", "Sketch020")
body3.addObject(sketch21)
sketch21.AttachmentSupport = (doc.getObject("XZ_Plane002"), [""])
sketch21.MapMode = "FlatFace"
sketch21.AttachmentOffset = App.Placement(V(0, 0, 1.125 * 25.4), App.Rotation())
sketch21.addGeometry(Part.Circle(V(-30.8, -20.4, 0), V(0, 0, 1), 1.8), False)
sketch21.addGeometry(Part.LineSegment(V(-30.8, -14.3, 0), V(-20.8, -14.3, 0)), True)  # axis
sketch21.addConstraint([
    Sketcher.Constraint("Horizontal", 1),
    Sketcher.Constraint("Vertical", 0, 3, 1, 1),
    Sketcher.Constraint("Diameter", 0, Q("0.139 in")),
    Sketcher.Constraint("DistanceY", 0, 3, -1, 1, Q("0.805 in")),
    Sketcher.Constraint("DistanceY", 1, 1, -1, 1, Q("0.562 in")),
    Sketcher.Constraint("DistanceX", 1, 1, 1, 2, 10.0),
    Sketcher.Constraint("DistanceX", 0, 3, -1, 1, Q("1.2145 in")),
])
revolution3 = doc.addObject("PartDesign::Revolution", "Revolution002")
body3.addObject(revolution3)
revolution3.Profile = sketch21
revolution3.ReferenceAxis = (sketch21, ["Axis0"])
revolution3.Angle = 360

doc.recompute()
